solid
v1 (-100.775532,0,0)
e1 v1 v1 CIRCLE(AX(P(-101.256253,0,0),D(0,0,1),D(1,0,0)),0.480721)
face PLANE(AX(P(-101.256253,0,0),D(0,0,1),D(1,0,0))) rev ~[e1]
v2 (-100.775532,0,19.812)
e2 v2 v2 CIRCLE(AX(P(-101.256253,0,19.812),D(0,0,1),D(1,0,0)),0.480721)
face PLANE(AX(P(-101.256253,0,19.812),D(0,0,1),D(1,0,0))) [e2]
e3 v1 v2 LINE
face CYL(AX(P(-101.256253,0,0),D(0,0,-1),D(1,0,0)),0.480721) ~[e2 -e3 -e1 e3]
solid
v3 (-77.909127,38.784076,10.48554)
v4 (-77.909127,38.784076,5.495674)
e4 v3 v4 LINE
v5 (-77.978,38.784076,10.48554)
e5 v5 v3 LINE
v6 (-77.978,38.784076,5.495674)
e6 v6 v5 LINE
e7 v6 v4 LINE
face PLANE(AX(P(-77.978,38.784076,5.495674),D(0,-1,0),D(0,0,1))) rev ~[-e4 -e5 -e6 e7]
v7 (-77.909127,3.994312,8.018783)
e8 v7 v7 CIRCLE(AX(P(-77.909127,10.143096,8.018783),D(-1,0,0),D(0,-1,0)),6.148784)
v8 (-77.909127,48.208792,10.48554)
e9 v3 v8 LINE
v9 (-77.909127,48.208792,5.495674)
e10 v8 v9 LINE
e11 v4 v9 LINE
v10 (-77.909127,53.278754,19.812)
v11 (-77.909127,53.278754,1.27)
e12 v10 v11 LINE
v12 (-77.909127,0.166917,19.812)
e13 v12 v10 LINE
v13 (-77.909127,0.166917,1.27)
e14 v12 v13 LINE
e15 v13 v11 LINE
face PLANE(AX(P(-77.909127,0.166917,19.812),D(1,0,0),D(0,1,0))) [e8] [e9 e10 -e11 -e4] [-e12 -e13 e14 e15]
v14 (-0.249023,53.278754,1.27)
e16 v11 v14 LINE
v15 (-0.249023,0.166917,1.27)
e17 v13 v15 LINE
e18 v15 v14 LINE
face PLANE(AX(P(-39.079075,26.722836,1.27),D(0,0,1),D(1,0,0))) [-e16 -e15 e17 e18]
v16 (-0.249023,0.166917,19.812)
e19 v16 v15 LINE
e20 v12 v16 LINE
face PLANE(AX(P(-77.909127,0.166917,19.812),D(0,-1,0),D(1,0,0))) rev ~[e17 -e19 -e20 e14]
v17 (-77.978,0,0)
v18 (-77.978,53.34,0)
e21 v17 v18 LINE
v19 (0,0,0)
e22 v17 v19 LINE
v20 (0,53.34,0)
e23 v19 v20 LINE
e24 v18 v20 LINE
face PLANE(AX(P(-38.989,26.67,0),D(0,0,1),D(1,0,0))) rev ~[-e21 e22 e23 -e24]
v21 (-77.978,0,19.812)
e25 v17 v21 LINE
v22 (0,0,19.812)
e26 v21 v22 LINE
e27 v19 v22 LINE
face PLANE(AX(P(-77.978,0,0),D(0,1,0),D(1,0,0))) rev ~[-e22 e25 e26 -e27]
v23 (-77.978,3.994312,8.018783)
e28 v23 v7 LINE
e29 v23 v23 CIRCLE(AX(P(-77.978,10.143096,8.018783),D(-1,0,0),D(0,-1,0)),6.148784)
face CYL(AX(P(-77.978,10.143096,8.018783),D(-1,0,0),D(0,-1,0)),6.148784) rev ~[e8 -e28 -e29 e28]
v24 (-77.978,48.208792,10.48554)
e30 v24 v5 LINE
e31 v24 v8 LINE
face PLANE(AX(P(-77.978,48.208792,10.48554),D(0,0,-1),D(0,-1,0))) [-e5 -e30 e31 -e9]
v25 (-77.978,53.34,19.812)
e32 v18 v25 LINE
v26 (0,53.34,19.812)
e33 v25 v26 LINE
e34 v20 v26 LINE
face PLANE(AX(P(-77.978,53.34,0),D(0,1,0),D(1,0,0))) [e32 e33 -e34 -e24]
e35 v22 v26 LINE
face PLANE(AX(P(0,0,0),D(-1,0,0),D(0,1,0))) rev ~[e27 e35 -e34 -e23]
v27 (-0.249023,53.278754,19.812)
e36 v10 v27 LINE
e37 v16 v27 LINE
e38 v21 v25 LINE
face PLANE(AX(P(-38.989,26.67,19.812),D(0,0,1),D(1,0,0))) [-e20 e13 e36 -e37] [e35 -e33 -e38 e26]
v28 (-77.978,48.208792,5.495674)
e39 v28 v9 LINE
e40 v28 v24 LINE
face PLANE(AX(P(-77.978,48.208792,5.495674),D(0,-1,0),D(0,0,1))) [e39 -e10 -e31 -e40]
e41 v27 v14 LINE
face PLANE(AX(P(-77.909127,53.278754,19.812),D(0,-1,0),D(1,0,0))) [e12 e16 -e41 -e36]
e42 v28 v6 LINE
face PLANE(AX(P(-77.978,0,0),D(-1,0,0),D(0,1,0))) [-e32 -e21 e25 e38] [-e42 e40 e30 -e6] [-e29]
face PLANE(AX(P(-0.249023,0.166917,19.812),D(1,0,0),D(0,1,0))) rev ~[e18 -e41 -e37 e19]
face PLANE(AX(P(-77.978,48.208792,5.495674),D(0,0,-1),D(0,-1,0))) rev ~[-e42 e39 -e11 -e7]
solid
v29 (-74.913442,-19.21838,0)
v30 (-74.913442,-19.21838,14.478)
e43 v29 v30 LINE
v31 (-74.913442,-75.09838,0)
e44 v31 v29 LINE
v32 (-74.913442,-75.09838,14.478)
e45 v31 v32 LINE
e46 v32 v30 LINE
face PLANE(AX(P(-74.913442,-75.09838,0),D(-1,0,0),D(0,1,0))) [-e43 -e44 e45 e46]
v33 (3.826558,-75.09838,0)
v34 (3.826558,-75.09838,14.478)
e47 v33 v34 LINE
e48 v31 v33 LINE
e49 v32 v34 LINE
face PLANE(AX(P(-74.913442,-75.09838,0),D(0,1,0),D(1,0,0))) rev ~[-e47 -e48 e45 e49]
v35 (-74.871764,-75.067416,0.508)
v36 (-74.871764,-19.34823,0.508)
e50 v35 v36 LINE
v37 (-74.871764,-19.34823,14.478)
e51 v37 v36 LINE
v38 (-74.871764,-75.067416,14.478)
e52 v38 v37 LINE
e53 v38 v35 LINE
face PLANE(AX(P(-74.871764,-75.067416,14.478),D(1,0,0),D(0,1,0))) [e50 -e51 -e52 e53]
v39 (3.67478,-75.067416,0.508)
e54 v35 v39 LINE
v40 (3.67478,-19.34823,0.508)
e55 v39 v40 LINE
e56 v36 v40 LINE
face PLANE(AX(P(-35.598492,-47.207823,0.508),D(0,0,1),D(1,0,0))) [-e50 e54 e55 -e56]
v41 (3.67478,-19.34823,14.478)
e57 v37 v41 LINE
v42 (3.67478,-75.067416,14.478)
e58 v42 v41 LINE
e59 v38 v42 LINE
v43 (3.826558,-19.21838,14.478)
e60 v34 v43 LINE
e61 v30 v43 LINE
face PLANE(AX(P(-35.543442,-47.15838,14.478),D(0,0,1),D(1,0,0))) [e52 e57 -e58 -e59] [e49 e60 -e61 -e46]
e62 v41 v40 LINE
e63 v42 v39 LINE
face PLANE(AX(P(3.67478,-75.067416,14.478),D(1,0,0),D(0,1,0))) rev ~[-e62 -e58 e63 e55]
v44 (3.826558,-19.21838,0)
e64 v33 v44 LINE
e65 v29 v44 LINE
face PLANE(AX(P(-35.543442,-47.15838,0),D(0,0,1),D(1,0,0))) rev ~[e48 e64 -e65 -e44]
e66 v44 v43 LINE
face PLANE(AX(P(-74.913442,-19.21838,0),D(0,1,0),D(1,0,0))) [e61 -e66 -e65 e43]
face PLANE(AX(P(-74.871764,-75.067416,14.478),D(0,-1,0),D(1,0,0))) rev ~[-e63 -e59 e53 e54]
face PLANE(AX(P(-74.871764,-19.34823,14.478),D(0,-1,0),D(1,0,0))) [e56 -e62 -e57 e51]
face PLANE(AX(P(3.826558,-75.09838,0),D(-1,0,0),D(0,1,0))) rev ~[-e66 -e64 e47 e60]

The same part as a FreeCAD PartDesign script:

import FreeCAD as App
import Part
import Sketcher
from FreeCAD import Vector
Q = App.Units.Quantity

doc = App.newDocument("Part")
params = doc.addObject("Spreadsheet::Sheet", "Params")
for row, (alias, value) in enumerate([
    ("sketch1_height", "2.1 in"),
    ("sketch1_width", "3.07 in"),
    ("pad1_length", "0.78 in"),
    ("pocket1_length", "1 in"),
    ("pocket2_length", "0.73 in"),
    ("pocket3_length", "1 in"),
    ("sketch5_width", "3.1 in"),
    ("sketch5_height", "2.2 in"),
    ("pad2_length", "0.57 in"),
    ("pocket4_length", "0.55 in"),
], start=1):
    params.set(f"A{row}", alias)
    params.set(f"B{row}", "=" + value)
    params.setAlias(f"B{row}", alias)

body = doc.addObject("PartDesign::Body", "Body")
body.AllowCompound = True

sketch1 = body.newObject("Sketcher::SketchObject", "Sketch")
sketch1.AttachmentSupport = (doc.getObject("XY_Plane"), [""])
sketch1.MapMode = "FlatFace"
sketch1.addGeometry([
    Part.Circle(Vector(-101.26, 0, 0), Vector(0, 0, 1), 0.48),
    Part.LineSegment(Vector(-77.98, 53.34, 0), Vector(-77.98, 0, 0)),
    Part.LineSegment(Vector(-77.98, 0, 0), Vector(0, 0, 0)),
    Part.LineSegment(Vector(0, 0, 0), Vector(0, 53.34, 0)),
    Part.LineSegment(Vector(0, 53.34, 0), Vector(-77.98, 53.34, 0)),
], False)
sketch1.addConstraint([
    Sketcher.Constraint("Coincident", 1, 2, 2, 1),
    Sketcher.Constraint("Coincident", 2, 2, 3, 1),
    Sketcher.Constraint("Coincident", 3, 2, 4, 1),
    Sketcher.Constraint("Coincident", 4, 2, 1, 1),
    Sketcher.Constraint("Vertical", 1),
    Sketcher.Constraint("Horizontal", 2),
    Sketcher.Constraint("Vertical", 3),
    Sketcher.Constraint("Horizontal", 4),
    Sketcher.Constraint("Coincident", 2, 2, -1, 1),
    Sketcher.Constraint("PointOnObject", 0, 3, -1),
    Sketcher.Constraint("DistanceY", 1, 2, 1, 1, Q("2.1 in")),
    Sketcher.Constraint("DistanceX", 2, 1, 2, 2, Q("3.07 in")),
    Sketcher.Constraint("Diameter", 0, Q("0.961442 mm")),
    Sketcher.Constraint("DistanceX", 0, 3, -1, 1, Q("101.256253 mm")),
])
sketch1.setExpression("Constraints[10]", "Params.sketch1_height")
sketch1.setExpression("Constraints[11]", "Params.sketch1_width")
pad1 = body.newObject("PartDesign::Pad", "Pad")
pad1.Profile = sketch1
pad1.setExpression("Length", "Params.pad1_length")

sketch2 = body.newObject("Sketcher::SketchObject", "Sketch001")
sketch2.AttachmentSupport = (doc.getObject("YZ_Plane"), [""])
sketch2.MapMode = "FlatFace"
sketch2.AttachmentOffset = App.Placement(Vector(0, 0, -3.07 * 25.4), App.Rotation())
sketch2.addGeometry(Part.Circle(Vector(10, 8, 0), Vector(0, 0, 1), 6), False)
sketch2.addConstraint([
    Sketcher.Constraint("Diameter", 0, Q("12.297568 mm")),
    Sketcher.Constraint("DistanceY", -1, 1, 0, 3, Q("0.3157001 in")),
    Sketcher.Constraint("DistanceX", -1, 1, 0, 3, Q("10.143096 mm")),
])
pocket1 = body.newObject("PartDesign::Pocket", "Pocket")
pocket1.Profile = sketch2
pocket1.setExpression("Length", "Params.pocket1_length")
pocket1.Reversed = True

sketch3 = body.newObject("Sketcher::SketchObject", "Sketch002")
sketch3.AttachmentSupport = (doc.getObject("XY_Plane"), [""])
sketch3.MapMode = "FlatFace"
sketch3.AttachmentOffset = App.Placement(Vector(0, 0, 0.78 * 25.4), App.Rotation())
sketch3.addGeometry([
    Part.LineSegment(Vector(-78, 53, 0), Vector(-78, 0, 0)),
    Part.LineSegment(Vector(-78, 0, 0), Vector(0, 0, 0)),
    Part.LineSegment(Vector(0, 0, 0), Vector(0, 53, 0)),
    Part.LineSegment(Vector(0, 53, 0), Vector(-78, 53, 0)),
], False)
sketch3.addConstraint([
    Sketcher.Constraint("Coincident", 0, 2, 1, 1),
    Sketcher.Constraint("Coincident", 1, 2, 2, 1),
    Sketcher.Constraint("Coincident", 2, 2, 3, 1),
    Sketcher.Constraint("Coincident", 3, 2, 0, 1),
    Sketcher.Constraint("Vertical", 0),
    Sketcher.Constraint("Horizontal", 1),
    Sketcher.Constraint("Vertical", 2),
    Sketcher.Constraint("Horizontal", 3),
    Sketcher.Constraint("DistanceX", 1, 1, 1, 2, Q("77.660104 mm")),
    Sketcher.Constraint("DistanceY", 0, 2, 0, 1, Q("53.111837 mm")),
    Sketcher.Constraint("DistanceX", 0, 2, -1, 1, Q("77.909127 mm")),
    Sketcher.Constraint("DistanceY", -1, 1, 0, 2, Q("0.166917 mm")),
])
pocket2 = body.newObject("PartDesign::Pocket", "Pocket001")
pocket2.Profile = sketch3
pocket2.setExpression("Length", "Params.pocket2_length")

sketch4 = body.newObject("Sketcher::SketchObject", "Sketch003")
sketch4.AttachmentSupport = (doc.getObject("YZ_Plane"), [""])
sketch4.MapMode = "FlatFace"
sketch4.AttachmentOffset = App.Placement(Vector(0, 0, -3.07 * 25.4), App.Rotation())
sketch4.addGeometry([
    Part.LineSegment(Vector(48.2, 10.5, 0), Vector(48.2, 5.5, 0)),
    Part.LineSegment(Vector(48.2, 5.5, 0), Vector(38.8, 5.5, 0)),
    Part.LineSegment(Vector(38.8, 5.5, 0), Vector(38.8, 10.5, 0)),
    Part.LineSegment(Vector(38.8, 10.5, 0), Vector(48.2, 10.5, 0)),
], False)
sketch4.addConstraint([
    Sketcher.Constraint("Coincident", 0, 2, 1, 1),
    Sketcher.Constraint("Coincident", 1, 2, 2, 1),
    Sketcher.Constraint("Coincident", 2, 2, 3, 1),
    Sketcher.Constraint("Coincident", 3, 2, 0, 1),
    Sketcher.Constraint("Vertical", 0),
    Sketcher.Constraint("Horizontal", 1),
    Sketcher.Constraint("Vertical", 2),
    Sketcher.Constraint("Horizontal", 3),
    Sketcher.Constraint("DistanceX", 1, 2, 1, 1, Q("9.424716 mm")),
    Sketcher.Constraint("DistanceY", 0, 2, 0, 1, Q("4.989866 mm")),
    Sketcher.Constraint("DistanceY", -1, 1, 2, 2, Q("10.48554 mm")),
    Sketcher.Constraint("DistanceX", -1, 1, 0, 2, Q("48.208792 mm")),
])
pocket3 = body.newObject("PartDesign::Pocket", "Pocket002")
pocket3.Profile = sketch4
pocket3.setExpression("Length", "Params.pocket3_length")
pocket3.Reversed = True
body2 = doc.addObject("PartDesign::Body", "Body001")

sketch5 = body2.newObject("Sketcher::SketchObject", "Sketch004")
sketch5.AttachmentSupport = (doc.getObject("XY_Plane001"), [""])
sketch5.MapMode = "FlatFace"
sketch5.addGeometry([
    Part.LineSegment(Vector(-75, -19, 0), Vector(-75, -75, 0)),
    Part.LineSegment(Vector(-75, -75, 0), Vector(4, -75, 0)),
    Part.LineSegment(Vector(4, -75, 0), Vector(4, -19, 0)),
    Part.LineSegment(Vector(4, -19, 0), Vector(-75, -19, 0)),
], False)
sketch5.addConstraint([
    Sketcher.Constraint("Coincident", 0, 2, 1, 1),
    Sketcher.Constraint("Coincident", 1, 2, 2, 1),
    Sketcher.Constraint("Coincident", 2, 2, 3, 1),
    Sketcher.Constraint("Coincident", 3, 2, 0, 1),
    Sketcher.Constraint("Vertical", 0),
    Sketcher.Constraint("Horizontal", 1),
    Sketcher.Constraint("Vertical", 2),
    Sketcher.Constraint("Horizontal", 3),
    Sketcher.Constraint("DistanceX", 1, 1, 1, 2, Q("3.1 in")),
    Sketcher.Constraint("DistanceY", 0, 2, 0, 1, Q("2.2 in")),
    Sketcher.Constraint("DistanceY", 0, 2, -1, 1, Q("75.09838 mm")),
    Sketcher.Constraint("DistanceX", 0, 2, -1, 1, Q("74.913442 mm")),
])
sketch5.setExpression("Constraints[8]", "Params.sketch5_width")
sketch5.setExpression("Constraints[9]", "Params.sketch5_height")
pad2 = body2.newObject("PartDesign::Pad", "Pad001")
pad2.Profile = sketch5
pad2.setExpression("Length", "Params.pad2_length")

sketch6 = body2.newObject("Sketcher::SketchObject", "Sketch005")
sketch6.AttachmentSupport = (doc.getObject("XY_Plane001"), [""])
sketch6.MapMode = "FlatFace"
sketch6.AttachmentOffset = App.Placement(Vector(0, 0, 0.57 * 25.4), App.Rotation())
sketch6.addGeometry([
    Part.LineSegment(Vector(-75, -19, 0), Vector(-75, -75, 0)),
    Part.LineSegment(Vector(-75, -75, 0), Vector(4, -75, 0)),
    Part.LineSegment(Vector(4, -75, 0), Vector(4, -19, 0)),
    Part.LineSegment(Vector(4, -19, 0), Vector(-75, -19, 0)),
], False)
sketch6.addConstraint([
    Sketcher.Constraint("Coincident", 0, 2, 1, 1),
    Sketcher.Constraint("Coincident", 1, 2, 2, 1),
    Sketcher.Constraint("Coincident", 2, 2, 3, 1),
    Sketcher.Constraint("Coincident", 3, 2, 0, 1),
    Sketcher.Constraint("Vertical", 0),
    Sketcher.Constraint("Horizontal", 1),
    Sketcher.Constraint("Vertical", 2),
    Sketcher.Constraint("Horizontal", 3),
    Sketcher.Constraint("DistanceX", 1, 1, 1, 2, Q("78.546543 mm")),
    Sketcher.Constraint("DistanceY", 0, 2, 0, 1, Q("55.719186 mm")),
    Sketcher.Constraint("DistanceX", -1, 1, 1, 2, Q("3.67478 mm")),
    Sketcher.Constraint("DistanceY", 2, 2, -1, 1, Q("19.34823 mm")),
])
pocket4 = body2.newObject("PartDesign::Pocket", "Pocket003")
pocket4.Profile = sketch6
pocket4.setExpression("Length", "Params.pocket4_length")

doc.recompute()
